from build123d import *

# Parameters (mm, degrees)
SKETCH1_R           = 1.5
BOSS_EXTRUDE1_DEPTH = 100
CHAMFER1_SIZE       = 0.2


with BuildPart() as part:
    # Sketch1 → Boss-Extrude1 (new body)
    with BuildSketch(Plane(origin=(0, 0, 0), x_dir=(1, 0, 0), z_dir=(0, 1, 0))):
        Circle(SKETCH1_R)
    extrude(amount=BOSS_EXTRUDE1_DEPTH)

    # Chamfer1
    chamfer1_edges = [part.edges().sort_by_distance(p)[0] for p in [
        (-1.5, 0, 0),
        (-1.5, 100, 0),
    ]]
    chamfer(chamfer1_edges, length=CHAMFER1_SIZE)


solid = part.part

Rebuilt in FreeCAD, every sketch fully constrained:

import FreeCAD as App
import Part
import Sketcher

V = App.Vector
Q = App.Units.Quantity


def edges_at(feature, points):
    """Names of the edges that pass closest to the given points."""
    edges = feature.Shape.Edges
    near = lambda p: min(range(len(edges)), key=lambda i: edges[i].distToShape(Part.Vertex(*p))[0])
    return sorted({f"Edge{near(p) + 1}" for p in points})

doc = App.newDocument("Part")
body = doc.addObject("PartDesign::Body", "Body")

sketch1 = doc.addObject("Sketcher::SketchObject", "Sketch")
body.addObject(sketch1)
sketch1.AttachmentSupport = (doc.XZ_Plane, [""])
sketch1.MapMode = "FlatFace"
sketch1.addGeometry(Part.Circle(V(0, 0, 0), V(0, 0, 1), 1.5), False)
sketch1.addConstraint(Sketcher.Constraint("Coincident", 0, 3, -1, 1))
sketch1.addConstraint(Sketcher.Constraint("Diameter", 0, Q("3 mm")))
pad1 = doc.addObject("PartDesign::Pad", "Pad")
body.addObject(pad1)
pad1.Profile = sketch1
pad1.Length = 100
pad1.Reversed = True
doc.recompute()

chamfer = doc.addObject("PartDesign::Chamfer", "Chamfer")
body.addObject(chamfer)
chamfer.Base = (pad1, edges_at(pad1, [(-1.5, 0, 0), (-1.5, 100, 0)]))
chamfer.Size = 0.2

doc.recompute()
